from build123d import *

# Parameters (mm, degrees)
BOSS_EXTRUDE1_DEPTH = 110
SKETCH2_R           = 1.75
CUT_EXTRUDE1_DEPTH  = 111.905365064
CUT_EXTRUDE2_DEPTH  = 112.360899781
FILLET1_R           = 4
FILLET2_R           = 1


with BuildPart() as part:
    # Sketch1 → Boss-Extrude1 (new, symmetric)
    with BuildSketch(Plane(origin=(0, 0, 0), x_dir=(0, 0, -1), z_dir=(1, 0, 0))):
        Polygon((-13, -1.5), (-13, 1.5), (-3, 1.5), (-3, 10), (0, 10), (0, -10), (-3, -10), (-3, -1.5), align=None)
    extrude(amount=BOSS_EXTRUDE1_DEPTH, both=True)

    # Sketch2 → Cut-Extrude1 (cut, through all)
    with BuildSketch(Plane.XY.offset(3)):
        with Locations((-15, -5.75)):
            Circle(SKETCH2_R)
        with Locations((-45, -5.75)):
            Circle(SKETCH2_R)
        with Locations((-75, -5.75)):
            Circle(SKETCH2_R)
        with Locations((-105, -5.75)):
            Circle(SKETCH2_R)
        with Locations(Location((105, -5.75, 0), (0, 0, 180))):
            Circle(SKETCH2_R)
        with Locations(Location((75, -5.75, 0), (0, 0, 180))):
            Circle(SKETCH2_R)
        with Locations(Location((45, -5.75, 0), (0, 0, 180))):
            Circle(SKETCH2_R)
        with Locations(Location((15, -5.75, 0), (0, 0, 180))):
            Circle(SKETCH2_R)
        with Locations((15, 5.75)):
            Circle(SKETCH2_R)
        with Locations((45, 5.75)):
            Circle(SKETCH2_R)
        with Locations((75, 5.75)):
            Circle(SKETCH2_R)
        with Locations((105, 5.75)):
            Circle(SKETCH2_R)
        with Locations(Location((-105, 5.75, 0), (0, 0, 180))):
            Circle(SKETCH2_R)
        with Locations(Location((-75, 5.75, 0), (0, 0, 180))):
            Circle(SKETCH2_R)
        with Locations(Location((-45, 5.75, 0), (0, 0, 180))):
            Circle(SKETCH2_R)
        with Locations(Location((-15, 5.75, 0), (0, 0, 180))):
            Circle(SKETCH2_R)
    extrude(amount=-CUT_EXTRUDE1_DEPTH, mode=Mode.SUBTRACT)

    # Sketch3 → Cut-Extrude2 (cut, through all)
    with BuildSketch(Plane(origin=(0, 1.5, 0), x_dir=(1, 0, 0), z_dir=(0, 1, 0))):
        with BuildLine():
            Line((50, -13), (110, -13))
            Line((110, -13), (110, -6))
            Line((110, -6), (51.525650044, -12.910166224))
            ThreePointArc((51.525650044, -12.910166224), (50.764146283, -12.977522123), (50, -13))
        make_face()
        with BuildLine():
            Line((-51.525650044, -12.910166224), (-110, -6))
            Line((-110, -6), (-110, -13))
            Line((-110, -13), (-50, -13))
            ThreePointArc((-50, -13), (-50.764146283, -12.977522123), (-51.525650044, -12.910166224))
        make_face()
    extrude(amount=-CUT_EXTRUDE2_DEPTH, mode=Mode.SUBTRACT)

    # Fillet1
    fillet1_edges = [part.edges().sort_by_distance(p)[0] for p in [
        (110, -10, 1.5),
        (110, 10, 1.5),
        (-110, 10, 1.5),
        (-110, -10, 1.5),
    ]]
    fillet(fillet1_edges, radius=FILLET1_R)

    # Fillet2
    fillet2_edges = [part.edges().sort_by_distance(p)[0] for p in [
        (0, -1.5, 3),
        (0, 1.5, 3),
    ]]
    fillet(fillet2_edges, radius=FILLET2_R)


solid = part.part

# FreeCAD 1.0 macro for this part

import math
import FreeCAD as App
import Part
import Sketcher
Q = App.Units.Quantity


def edges_at(feature, points):
    """Names of the edges that pass closest to the given points."""
    edges = feature.Shape.Edges
    near = lambda p: min(range(len(edges)), key=lambda i: edges[i].distToShape(Part.Vertex(*p))[0])
    return sorted({f"Edge{near(p) + 1}" for p in points})

doc = App.newDocument("Part")
body = doc.addObject("PartDesign::Body", "Body")

sketch1 = doc.addObject("Sketcher::SketchObject", "Sketch")
body.addObject(sketch1)
sketch1.AttachmentSupport = (doc.YZ_Plane, [""])
sketch1.MapMode = "FlatFace"
sketch1.addGeometry([
    Part.LineSegment(App.Vector(1.5, 13, 0), App.Vector(-1.5, 13, 0)),
    Part.LineSegment(App.Vector(-1.5, 13, 0), App.Vector(-1.5, 3, 0)),
    Part.LineSegment(App.Vector(-1.5, 3, 0), App.Vector(-10, 3, 0)),
    Part.LineSegment(App.Vector(-10, 3, 0), App.Vector(-10, 0, 0)),
    Part.LineSegment(App.Vector(-10, 0, 0), App.Vector(10, 0, 0)),
    Part.LineSegment(App.Vector(10, 0, 0), App.Vector(10, 3, 0)),
    Part.LineSegment(App.Vector(10, 3, 0), App.Vector(1.5, 3, 0)),
    Part.LineSegment(App.Vector(1.5, 3, 0), App.Vector(1.5, 13, 0)),
], False)
sketch1.addConstraint([
    Sketcher.Constraint("Coincident", 0, 2, 1, 1),
    Sketcher.Constraint("Coincident", 1, 2, 2, 1),
    Sketcher.Constraint("Coincident", 2, 2, 3, 1),
    Sketcher.Constraint("Coincident", 3, 2, 4, 1),
    Sketcher.Constraint("Coincident", 4, 2, 5, 1),
    Sketcher.Constraint("Coincident", 5, 2, 6, 1),
    Sketcher.Constraint("Coincident", 6, 2, 7, 1),
    Sketcher.Constraint("Coincident", 7, 2, 0, 1),
    Sketcher.Constraint("Horizontal", 0),
    Sketcher.Constraint("Vertical", 1),
    Sketcher.Constraint("Horizontal", 2),
    Sketcher.Constraint("Vertical", 3),
    Sketcher.Constraint("Horizontal", 4),
    Sketcher.Constraint("Vertical", 5),
    Sketcher.Constraint("Horizontal", 6),
    Sketcher.Constraint("Vertical", 7),
    Sketcher.Constraint("Symmetric", 3, 2, 4, 2, -1, 1),
    Sketcher.Constraint("Symmetric", 1, 2, 6, 2, -2),
    Sketcher.Constraint("Equal", 0, 3),
    Sketcher.Constraint("DistanceX", 0, 2, 0, 1, Q("3 mm")),
    Sketcher.Constraint("DistanceX", 4, 1, 4, 2, Q("20 mm")),
    Sketcher.Constraint("DistanceY", 1, 2, 1, 1, Q("10 mm")),
])
pad1 = doc.addObject("PartDesign::Pad", "Pad")
body.addObject(pad1)
pad1.Profile = sketch1
pad1.Length = 220
pad1.Midplane = True

sketch2 = doc.addObject("Sketcher::SketchObject", "Sketch001")
body.addObject(sketch2)
sketch2.AttachmentSupport = (doc.XY_Plane, [""])
sketch2.MapMode = "FlatFace"
sketch2.AttachmentOffset = App.Placement(App.Vector(0, 0, 3), App.Rotation())
sketch2.addGeometry([
    Part.Circle(App.Vector(-15, -5.75, 0), App.Vector(0, 0, 1), 1.75),
    Part.Circle(App.Vector(-45, -5.75, 0), App.Vector(0, 0, 1), 1.75),
    Part.Circle(App.Vector(-75, -5.75, 0), App.Vector(0, 0, 1), 1.75),
    Part.Circle(App.Vector(-105, -5.75, 0), App.Vector(0, 0, 1), 1.75),
    Part.Circle(App.Vector(105, -5.75, 0), App.Vector(0, 0, 1), 1.75),
    Part.Circle(App.Vector(75, -5.75, 0), App.Vector(0, 0, 1), 1.75),
    Part.Circle(App.Vector(45, -5.75, 0), App.Vector(0, 0, 1), 1.75),
    Part.Circle(App.Vector(15, -5.75, 0), App.Vector(0, 0, 1), 1.75),
    Part.Circle(App.Vector(15, 5.75, 0), App.Vector(0, 0, 1), 1.75),
    Part.Circle(App.Vector(45, 5.75, 0), App.Vector(0, 0, 1), 1.75),
    Part.Circle(App.Vector(75, 5.75, 0), App.Vector(0, 0, 1), 1.75),
    Part.Circle(App.Vector(105, 5.75, 0), App.Vector(0, 0, 1), 1.75),
    Part.Circle(App.Vector(-105, 5.75, 0), App.Vector(0, 0, 1), 1.75),
    Part.Circle(App.Vector(-75, 5.75, 0), App.Vector(0, 0, 1), 1.75),
    Part.Circle(App.Vector(-45, 5.75, 0), App.Vector(0, 0, 1), 1.75),
    Part.Circle(App.Vector(-15, 5.75, 0), App.Vector(0, 0, 1), 1.75),
], False)
sketch2.addConstraint([
    Sketcher.Constraint("Equal", 0, 1),
    Sketcher.Constraint("Equal", 1, 2),
    Sketcher.Constraint("Equal", 2, 3),
    Sketcher.Constraint("Equal", 3, 4),
    Sketcher.Constraint("Equal", 4, 5),
    Sketcher.Constraint("Equal", 5, 6),
    Sketcher.Constraint("Equal", 6, 7),
    Sketcher.Constraint("Equal", 7, 8),
    Sketcher.Constraint("Equal", 8, 9),
    Sketcher.Constraint("Equal", 9, 10),
    Sketcher.Constraint("Equal", 10, 11),
    Sketcher.Constraint("Equal", 11, 12),
    Sketcher.Constraint("Equal", 12, 13),
    Sketcher.Constraint("Equal", 13, 14),
    Sketcher.Constraint("Equal", 14, 15),
    Sketcher.Constraint("Symmetric", 0, 3, 8, 3, -1, 1),
    Sketcher.Constraint("Symmetric", 1, 3, 9, 3, -1, 1),
    Sketcher.Constraint("Symmetric", 2, 3, 10, 3, -1, 1),
    Sketcher.Constraint("Symmetric", 3, 3, 11, 3, -1, 1),
    Sketcher.Constraint("Symmetric", 4, 3, 12, 3, -1, 1),
    Sketcher.Constraint("Symmetric", 5, 3, 13, 3, -1, 1),
    Sketcher.Constraint("Symmetric", 6, 3, 14, 3, -1, 1),
    Sketcher.Constraint("Symmetric", 7, 3, 15, 3, -1, 1),
    Sketcher.Constraint("Symmetric", 3, 3, 4, 3, -2),
    Sketcher.Constraint("Symmetric", 2, 3, 5, 3, -2),
    Sketcher.Constraint("Symmetric", 1, 3, 6, 3, -2),
    Sketcher.Constraint("Symmetric", 0, 3, 7, 3, -2),
    Sketcher.Constraint("Horizontal", 0, 3, 1, 3),
    Sketcher.Constraint("Horizontal", 1, 3, 2, 3),
    Sketcher.Constraint("Horizontal", 2, 3, 3, 3),
    Sketcher.Constraint("Diameter", 0, Q("3.5 mm")),
    Sketcher.Constraint("DistanceX", 0, 3, -1, 1, Q("15 mm")),
    Sketcher.Constraint("DistanceX", 1, 3, -1, 1, Q("45 mm")),
    Sketcher.Constraint("DistanceX", 2, 3, -1, 1, Q("75 mm")),
    Sketcher.Constraint("DistanceX", 3, 3, -1, 1, Q("105 mm")),
    Sketcher.Constraint("DistanceY", 7, 3, 8, 3, Q("11.5 mm")),
])
pocket1 = doc.addObject("PartDesign::Pocket", "Pocket")
body.addObject(pocket1)
pocket1.Profile = sketch2
pocket1.Type = "ThroughAll"

sketch3 = doc.addObject("Sketcher::SketchObject", "Sketch002")
body.addObject(sketch3)
sketch3.AttachmentSupport = (doc.XZ_Plane, [""])
sketch3.MapMode = "FlatFace"
sketch3.AttachmentOffset = App.Placement(App.Vector(0, 0, -1.5), App.Rotation())
sketch3.addGeometry([
    Part.LineSegment(App.Vector(50, 13, 0), App.Vector(110, 13, 0)),
    Part.LineSegment(App.Vector(110, 13, 0), App.Vector(110, 6, 0)),
    Part.LineSegment(App.Vector(110, 6, 0), App.Vector(51.52565, 12.910166, 0)),
    Part.ArcOfCircle(Part.Circle(App.Vector(50, 0, 0), App.Vector(0, 0, 1), 13), math.radians(83.260368), math.radians(90)),
    Part.LineSegment(App.Vector(-51.52565, 12.910166, 0), App.Vector(-110, 6, 0)),
    Part.LineSegment(App.Vector(-110, 6, 0), App.Vector(-110, 13, 0)),
    Part.LineSegment(App.Vector(-110, 13, 0), App.Vector(-50, 13, 0)),
    Part.ArcOfCircle(Part.Circle(App.Vector(-50, 0, 0), App.Vector(0, 0, 1), 13), math.radians(90), math.radians(96.739632)),
], False)
sketch3.addConstraint([
    Sketcher.Constraint("Coincident", 0, 2, 1, 1),
    Sketcher.Constraint("Coincident", 1, 2, 2, 1),
    Sketcher.Constraint("Tangent", 2, 2, 3, 1),
    Sketcher.Constraint("Tangent", 3, 2, 0, 1),
    Sketcher.Constraint("Coincident", 4, 2, 5, 1),
    Sketcher.Constraint("Coincident", 5, 2, 6, 1),
    Sketcher.Constraint("Tangent", 6, 2, 7, 1),
    Sketcher.Constraint("Tangent", 7, 2, 4, 1),
    Sketcher.Constraint("Horizontal", 0),
    Sketcher.Constraint("Vertical", 1),
    Sketcher.Constraint("Vertical", 5),
    Sketcher.Constraint("Horizontal", 6),
    Sketcher.Constraint("Equal", 3, 7),
    Sketcher.Constraint("Symmetric", 3, 3, 7, 3, -1, 1),
    Sketcher.Constraint("Symmetric", 1, 2, 4, 2, -2),
    Sketcher.Constraint("PointOnObject", 3, 3, -1),
    Sketcher.Constraint("Radius", 3, Q("13 mm")),
    Sketcher.Constraint("DistanceX", 0, 1, 0, 2, Q("60 mm")),
    Sketcher.Constraint("DistanceY", 1, 2, 1, 1, Q("7 mm")),
    Sketcher.Constraint("DistanceX", -1, 1, 3, 3, Q("50 mm")),
])
pocket2 = doc.addObject("PartDesign::Pocket", "Pocket001")
body.addObject(pocket2)
pocket2.Profile = sketch3
pocket2.Type = "ThroughAll"
pocket2.Reversed = True
doc.recompute()

fillet = doc.addObject("PartDesign::Fillet", "Fillet")
body.addObject(fillet)
fillet.Base = (pocket2, edges_at(pocket2, [
    (110, -10, 1.5),
    (110, 10, 1.5),
    (-110, 10, 1.5),
    (-110, -10, 1.5),
]))
fillet.Radius = 4
doc.recompute()

fillet2 = doc.addObject("PartDesign::Fillet", "Fillet001")
body.addObject(fillet2)
fillet2.Base = (fillet, edges_at(fillet, [(0, -1.5, 3), (0, 1.5, 3)]))
fillet2.Radius = 1

doc.recompute()
